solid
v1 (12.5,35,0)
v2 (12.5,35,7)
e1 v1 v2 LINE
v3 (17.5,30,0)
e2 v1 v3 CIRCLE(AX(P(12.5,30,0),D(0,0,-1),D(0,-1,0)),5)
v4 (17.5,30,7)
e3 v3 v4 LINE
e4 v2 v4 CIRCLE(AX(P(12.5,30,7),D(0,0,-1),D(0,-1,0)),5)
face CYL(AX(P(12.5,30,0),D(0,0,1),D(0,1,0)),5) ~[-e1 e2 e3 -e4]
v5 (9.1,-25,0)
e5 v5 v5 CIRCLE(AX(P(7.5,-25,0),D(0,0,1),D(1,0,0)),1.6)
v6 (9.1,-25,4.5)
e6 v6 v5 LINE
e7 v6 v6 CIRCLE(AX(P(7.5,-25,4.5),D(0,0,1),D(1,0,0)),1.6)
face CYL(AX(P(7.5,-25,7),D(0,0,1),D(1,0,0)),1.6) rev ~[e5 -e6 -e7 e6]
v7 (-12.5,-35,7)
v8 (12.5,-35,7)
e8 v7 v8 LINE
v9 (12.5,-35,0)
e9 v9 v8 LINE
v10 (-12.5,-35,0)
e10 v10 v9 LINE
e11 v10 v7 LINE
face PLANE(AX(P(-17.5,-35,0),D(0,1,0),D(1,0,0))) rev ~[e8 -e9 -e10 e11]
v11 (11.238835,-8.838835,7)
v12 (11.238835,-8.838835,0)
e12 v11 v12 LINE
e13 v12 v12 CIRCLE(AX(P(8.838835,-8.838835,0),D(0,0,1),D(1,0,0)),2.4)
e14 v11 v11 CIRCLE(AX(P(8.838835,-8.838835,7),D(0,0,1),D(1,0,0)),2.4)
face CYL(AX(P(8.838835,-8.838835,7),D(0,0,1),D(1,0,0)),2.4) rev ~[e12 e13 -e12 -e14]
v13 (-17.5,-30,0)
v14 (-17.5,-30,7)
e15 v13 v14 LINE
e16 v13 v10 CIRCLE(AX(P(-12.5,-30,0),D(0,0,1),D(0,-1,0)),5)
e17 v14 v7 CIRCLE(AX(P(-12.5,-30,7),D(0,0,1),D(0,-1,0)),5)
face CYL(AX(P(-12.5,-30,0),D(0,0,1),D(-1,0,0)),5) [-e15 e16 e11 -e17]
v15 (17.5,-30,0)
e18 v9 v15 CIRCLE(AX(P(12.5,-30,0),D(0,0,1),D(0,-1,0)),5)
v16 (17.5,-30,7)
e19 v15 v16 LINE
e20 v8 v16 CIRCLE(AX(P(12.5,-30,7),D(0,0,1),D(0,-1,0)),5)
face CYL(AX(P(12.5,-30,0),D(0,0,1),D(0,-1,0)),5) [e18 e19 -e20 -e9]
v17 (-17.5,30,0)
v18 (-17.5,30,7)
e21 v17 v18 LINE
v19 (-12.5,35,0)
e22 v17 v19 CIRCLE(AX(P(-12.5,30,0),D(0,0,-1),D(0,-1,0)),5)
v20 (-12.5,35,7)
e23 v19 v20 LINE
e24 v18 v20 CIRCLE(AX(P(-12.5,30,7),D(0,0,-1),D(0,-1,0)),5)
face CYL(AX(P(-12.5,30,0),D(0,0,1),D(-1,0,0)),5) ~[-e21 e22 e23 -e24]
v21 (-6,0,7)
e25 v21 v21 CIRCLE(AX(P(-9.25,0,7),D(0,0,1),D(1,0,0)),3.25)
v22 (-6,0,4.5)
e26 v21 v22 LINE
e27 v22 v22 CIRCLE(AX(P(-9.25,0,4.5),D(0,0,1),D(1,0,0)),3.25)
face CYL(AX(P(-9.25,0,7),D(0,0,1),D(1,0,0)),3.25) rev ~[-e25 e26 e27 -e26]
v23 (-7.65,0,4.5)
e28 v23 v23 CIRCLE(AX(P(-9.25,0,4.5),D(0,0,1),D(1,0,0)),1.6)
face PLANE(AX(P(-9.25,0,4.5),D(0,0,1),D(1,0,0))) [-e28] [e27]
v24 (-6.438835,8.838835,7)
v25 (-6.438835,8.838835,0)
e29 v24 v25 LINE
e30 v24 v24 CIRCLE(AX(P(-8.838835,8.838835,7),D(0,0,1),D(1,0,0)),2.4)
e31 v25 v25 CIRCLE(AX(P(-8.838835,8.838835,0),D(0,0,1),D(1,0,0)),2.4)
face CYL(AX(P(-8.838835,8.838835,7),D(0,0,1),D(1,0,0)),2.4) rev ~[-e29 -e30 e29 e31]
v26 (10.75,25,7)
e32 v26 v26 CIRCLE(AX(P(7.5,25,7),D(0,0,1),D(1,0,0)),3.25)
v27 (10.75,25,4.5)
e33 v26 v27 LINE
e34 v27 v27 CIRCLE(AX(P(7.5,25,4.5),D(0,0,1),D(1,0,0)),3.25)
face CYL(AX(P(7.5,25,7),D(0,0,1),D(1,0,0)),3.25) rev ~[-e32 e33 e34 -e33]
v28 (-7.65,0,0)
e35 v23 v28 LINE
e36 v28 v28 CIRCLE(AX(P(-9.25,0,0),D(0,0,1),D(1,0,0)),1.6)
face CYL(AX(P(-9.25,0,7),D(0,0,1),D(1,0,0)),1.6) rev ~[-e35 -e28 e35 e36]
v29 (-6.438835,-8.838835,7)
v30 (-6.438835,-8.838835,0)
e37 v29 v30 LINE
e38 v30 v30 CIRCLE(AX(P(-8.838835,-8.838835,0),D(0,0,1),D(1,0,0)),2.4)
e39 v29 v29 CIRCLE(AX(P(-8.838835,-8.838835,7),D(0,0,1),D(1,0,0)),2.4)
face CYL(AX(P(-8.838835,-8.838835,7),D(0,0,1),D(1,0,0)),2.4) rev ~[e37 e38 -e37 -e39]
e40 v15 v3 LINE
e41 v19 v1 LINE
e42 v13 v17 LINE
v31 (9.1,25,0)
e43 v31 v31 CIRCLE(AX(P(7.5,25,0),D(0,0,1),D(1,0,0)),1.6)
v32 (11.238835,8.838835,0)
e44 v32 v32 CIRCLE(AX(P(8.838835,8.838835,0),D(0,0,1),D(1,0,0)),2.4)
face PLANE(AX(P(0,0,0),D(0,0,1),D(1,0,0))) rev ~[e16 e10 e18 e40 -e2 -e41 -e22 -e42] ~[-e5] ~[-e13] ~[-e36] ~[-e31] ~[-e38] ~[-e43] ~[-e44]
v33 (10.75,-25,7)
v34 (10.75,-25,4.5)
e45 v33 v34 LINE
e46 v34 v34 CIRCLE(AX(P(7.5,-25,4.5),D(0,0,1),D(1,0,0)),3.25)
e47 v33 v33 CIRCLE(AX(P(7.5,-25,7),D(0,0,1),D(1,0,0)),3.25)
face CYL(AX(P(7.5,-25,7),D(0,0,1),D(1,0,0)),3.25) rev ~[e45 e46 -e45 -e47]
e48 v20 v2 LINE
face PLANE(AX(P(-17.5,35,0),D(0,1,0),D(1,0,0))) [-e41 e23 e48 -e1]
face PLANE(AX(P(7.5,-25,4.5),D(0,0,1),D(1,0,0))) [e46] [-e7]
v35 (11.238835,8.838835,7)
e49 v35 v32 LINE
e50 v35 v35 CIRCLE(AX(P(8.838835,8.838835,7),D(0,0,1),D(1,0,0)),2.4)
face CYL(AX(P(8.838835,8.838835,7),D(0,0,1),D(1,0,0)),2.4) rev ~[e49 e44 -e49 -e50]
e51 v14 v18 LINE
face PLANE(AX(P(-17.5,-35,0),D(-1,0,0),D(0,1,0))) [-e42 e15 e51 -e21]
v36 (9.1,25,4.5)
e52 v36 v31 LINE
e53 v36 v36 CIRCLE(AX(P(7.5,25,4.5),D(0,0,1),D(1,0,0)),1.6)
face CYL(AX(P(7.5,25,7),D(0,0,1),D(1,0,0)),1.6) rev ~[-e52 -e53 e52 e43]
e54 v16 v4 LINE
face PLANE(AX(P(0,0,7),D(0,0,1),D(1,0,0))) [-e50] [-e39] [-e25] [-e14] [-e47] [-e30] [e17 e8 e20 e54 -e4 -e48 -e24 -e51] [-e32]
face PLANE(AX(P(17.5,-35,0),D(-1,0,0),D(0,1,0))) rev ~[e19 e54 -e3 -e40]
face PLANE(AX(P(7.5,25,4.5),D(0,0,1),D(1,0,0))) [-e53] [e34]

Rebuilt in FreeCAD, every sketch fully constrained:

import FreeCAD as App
import Part
import Sketcher
Q = App.Units.Quantity


def edges_at(feature, points):
    """Names of the edges that pass closest to the given points."""
    edges = feature.Shape.Edges
    near = lambda p: min(range(len(edges)), key=lambda i: edges[i].distToShape(Part.Vertex(*p))[0])
    return sorted({f"Edge{near(p) + 1}" for p in points})

doc = App.newDocument("Part")
body = doc.addObject("PartDesign::Body", "Body")

sketch1 = body.newObject("Sketcher::SketchObject", "Sketch")
sketch1.AttachmentSupport = (doc.getObject("XY_Plane"), [""])
sketch1.MapMode = "FlatFace"
sketch1.addGeometry([
    Part.LineSegment(App.Vector(-17.5, 35, 0), App.Vector(-17.5, -35, 0)),
    Part.LineSegment(App.Vector(-17.5, -35, 0), App.Vector(17.5, -35, 0)),
    Part.LineSegment(App.Vector(17.5, -35, 0), App.Vector(17.5, 35, 0)),
    Part.LineSegment(App.Vector(17.5, 35, 0), App.Vector(-17.5, 35, 0)),
], False)
sketch1.addConstraint([
    Sketcher.Constraint("Coincident", 0, 2, 1, 1),
    Sketcher.Constraint("Coincident", 1, 2, 2, 1),
    Sketcher.Constraint("Coincident", 2, 2, 3, 1),
    Sketcher.Constraint("Coincident", 3, 2, 0, 1),
    Sketcher.Constraint("Vertical", 0),
    Sketcher.Constraint("Horizontal", 1),
    Sketcher.Constraint("Vertical", 2),
    Sketcher.Constraint("Horizontal", 3),
    Sketcher.Constraint("Symmetric", 0, 2, 2, 2, -1, 1),
    Sketcher.Constraint("DistanceX", 1, 1, 1, 2, Q("35 mm")),
    Sketcher.Constraint("DistanceY", 0, 2, 0, 1, Q("70 mm")),
])
pad1 = body.newObject("PartDesign::Pad", "Pad")
pad1.Profile = sketch1
pad1.Length = 7

sketch2 = body.newObject("Sketcher::SketchObject", "Sketch001")
sketch2.AttachmentSupport = (doc.getObject("XY_Plane"), [""])
sketch2.MapMode = "FlatFace"
sketch2.AttachmentOffset = App.Placement(App.Vector(0, 0, 7), App.Rotation())
sketch2.addGeometry([
    Part.Circle(App.Vector(7.5, 25, 0), App.Vector(0, 0, 1), 1.6),
    Part.Circle(App.Vector(-9.25, 0, 0), App.Vector(0, 0, 1), 1.6),
    Part.Circle(App.Vector(7.5, -25, 0), App.Vector(0, 0, 1), 1.6),
    Part.Circle(App.Vector(-8.838835, 8.838835, 0), App.Vector(0, 0, 1), 2.4),
    Part.Circle(App.Vector(8.838835, 8.838835, 0), App.Vector(0, 0, 1), 2.4),
    Part.Circle(App.Vector(-8.838835, -8.838835, 0), App.Vector(0, 0, 1), 2.4),
    Part.Circle(App.Vector(8.838835, -8.838835, 0), App.Vector(0, 0, 1), 2.4),
], False)
sketch2.addConstraint([
    Sketcher.Constraint("Equal", 0, 1),
    Sketcher.Constraint("Equal", 1, 2),
    Sketcher.Constraint("Equal", 3, 4),
    Sketcher.Constraint("Equal", 4, 5),
    Sketcher.Constraint("Equal", 5, 6),
    Sketcher.Constraint("Symmetric", 4, 3, 5, 3, -1, 1),
    Sketcher.Constraint("Symmetric", 3, 3, 6, 3, -1, 1),
    Sketcher.Constraint("Symmetric", 3, 3, 4, 3, -2),
    Sketcher.Constraint("Symmetric", 0, 3, 2, 3, -1),
    Sketcher.Constraint("PointOnObject", 1, 3, -1),
    Sketcher.Constraint("Diameter", 0, Q("3.2 mm")),
    Sketcher.Constraint("Diameter", 3, Q("4.8 mm")),
    Sketcher.Constraint("DistanceY", -1, 1, 0, 3, Q("25 mm")),
    Sketcher.Constraint("DistanceX", -1, 1, 0, 3, Q("7.5 mm")),
    Sketcher.Constraint("DistanceX", 1, 3, -1, 1, Q("9.25 mm")),
    Sketcher.Constraint("DistanceX", 3, 3, 4, 3, Q("17.67767 mm")),
    Sketcher.Constraint("DistanceY", 5, 3, 3, 3, Q("17.67767 mm")),
])
pocket1 = body.newObject("PartDesign::Pocket", "Pocket")
pocket1.Profile = sketch2
pocket1.Length = 10

sketch3 = body.newObject("Sketcher::SketchObject", "Sketch002")
sketch3.AttachmentSupport = (doc.getObject("XY_Plane"), [""])
sketch3.MapMode = "FlatFace"
sketch3.AttachmentOffset = App.Placement(App.Vector(0, 0, 7), App.Rotation())
sketch3.addGeometry([
    Part.Circle(App.Vector(-9.25, 0, 0), App.Vector(0, 0, 1), 3.25),
    Part.Circle(App.Vector(7.5, 25, 0), App.Vector(0, 0, 1), 3.25),
    Part.Circle(App.Vector(7.5, -25, 0), App.Vector(0, 0, 1), 3.25),
], False)
sketch3.addConstraint([
    Sketcher.Constraint("Equal", 0, 1),
    Sketcher.Constraint("Equal", 1, 2),
    Sketcher.Constraint("Symmetric", 1, 3, 2, 3, -1),
    Sketcher.Constraint("PointOnObject", 0, 3, -1),
    Sketcher.Constraint("Diameter", 0, Q("6.5 mm")),
    Sketcher.Constraint("DistanceY", -1, 1, 1, 3, Q("25 mm")),
    Sketcher.Constraint("DistanceX", -1, 1, 1, 3, Q("7.5 mm")),
    Sketcher.Constraint("DistanceX", 0, 3, -1, 1, Q("9.25 mm")),
])
pocket2 = body.newObject("PartDesign::Pocket", "Pocket001")
pocket2.Profile = sketch3
pocket2.Length = 2.5
doc.recompute()

fillet = body.newObject("PartDesign::Fillet", "Fillet")
fillet.Base = (pocket2, edges_at(pocket2, [
    (-17.5, -35, 3.5),
    (17.5, -35, 3.5),
    (-17.5, 35, 3.5),
    (17.5, 35, 3.5),
]))
fillet.Radius = 5

doc.recompute()
